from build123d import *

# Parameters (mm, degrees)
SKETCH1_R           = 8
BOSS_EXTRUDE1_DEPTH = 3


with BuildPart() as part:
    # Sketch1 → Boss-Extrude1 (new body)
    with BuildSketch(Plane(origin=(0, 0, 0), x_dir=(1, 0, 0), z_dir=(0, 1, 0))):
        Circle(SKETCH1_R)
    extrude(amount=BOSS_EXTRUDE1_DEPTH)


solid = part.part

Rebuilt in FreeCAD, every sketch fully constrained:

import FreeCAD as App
import Part
import Sketcher
Q = App.Units.Quantity

doc = App.newDocument("Part")
body = doc.addObject("PartDesign::Body", "Body")

# Sketch on XZ plane
sketch1 = body.newObject("Sketcher::SketchObject", "Sketch")
sketch1.AttachmentSupport = (doc.getObject("XZ_Plane"), [""])
sketch1.MapMode = "FlatFace"
sketch1.addGeometry(Part.Circle(App.Vector(0, 0, 0), App.Vector(0, 0, 1), 8), False)
sketch1.addConstraint([
    Sketcher.Constraint("Coincident", 0, 3, -1, 1),
    Sketcher.Constraint("Diameter", 0, Q("16 mm")),
])
pad1 = body.newObject("PartDesign::Pad", "Pad")
pad1.Profile = sketch1
pad1.Length = 3
pad1.Reversed = True

doc.recompute()
